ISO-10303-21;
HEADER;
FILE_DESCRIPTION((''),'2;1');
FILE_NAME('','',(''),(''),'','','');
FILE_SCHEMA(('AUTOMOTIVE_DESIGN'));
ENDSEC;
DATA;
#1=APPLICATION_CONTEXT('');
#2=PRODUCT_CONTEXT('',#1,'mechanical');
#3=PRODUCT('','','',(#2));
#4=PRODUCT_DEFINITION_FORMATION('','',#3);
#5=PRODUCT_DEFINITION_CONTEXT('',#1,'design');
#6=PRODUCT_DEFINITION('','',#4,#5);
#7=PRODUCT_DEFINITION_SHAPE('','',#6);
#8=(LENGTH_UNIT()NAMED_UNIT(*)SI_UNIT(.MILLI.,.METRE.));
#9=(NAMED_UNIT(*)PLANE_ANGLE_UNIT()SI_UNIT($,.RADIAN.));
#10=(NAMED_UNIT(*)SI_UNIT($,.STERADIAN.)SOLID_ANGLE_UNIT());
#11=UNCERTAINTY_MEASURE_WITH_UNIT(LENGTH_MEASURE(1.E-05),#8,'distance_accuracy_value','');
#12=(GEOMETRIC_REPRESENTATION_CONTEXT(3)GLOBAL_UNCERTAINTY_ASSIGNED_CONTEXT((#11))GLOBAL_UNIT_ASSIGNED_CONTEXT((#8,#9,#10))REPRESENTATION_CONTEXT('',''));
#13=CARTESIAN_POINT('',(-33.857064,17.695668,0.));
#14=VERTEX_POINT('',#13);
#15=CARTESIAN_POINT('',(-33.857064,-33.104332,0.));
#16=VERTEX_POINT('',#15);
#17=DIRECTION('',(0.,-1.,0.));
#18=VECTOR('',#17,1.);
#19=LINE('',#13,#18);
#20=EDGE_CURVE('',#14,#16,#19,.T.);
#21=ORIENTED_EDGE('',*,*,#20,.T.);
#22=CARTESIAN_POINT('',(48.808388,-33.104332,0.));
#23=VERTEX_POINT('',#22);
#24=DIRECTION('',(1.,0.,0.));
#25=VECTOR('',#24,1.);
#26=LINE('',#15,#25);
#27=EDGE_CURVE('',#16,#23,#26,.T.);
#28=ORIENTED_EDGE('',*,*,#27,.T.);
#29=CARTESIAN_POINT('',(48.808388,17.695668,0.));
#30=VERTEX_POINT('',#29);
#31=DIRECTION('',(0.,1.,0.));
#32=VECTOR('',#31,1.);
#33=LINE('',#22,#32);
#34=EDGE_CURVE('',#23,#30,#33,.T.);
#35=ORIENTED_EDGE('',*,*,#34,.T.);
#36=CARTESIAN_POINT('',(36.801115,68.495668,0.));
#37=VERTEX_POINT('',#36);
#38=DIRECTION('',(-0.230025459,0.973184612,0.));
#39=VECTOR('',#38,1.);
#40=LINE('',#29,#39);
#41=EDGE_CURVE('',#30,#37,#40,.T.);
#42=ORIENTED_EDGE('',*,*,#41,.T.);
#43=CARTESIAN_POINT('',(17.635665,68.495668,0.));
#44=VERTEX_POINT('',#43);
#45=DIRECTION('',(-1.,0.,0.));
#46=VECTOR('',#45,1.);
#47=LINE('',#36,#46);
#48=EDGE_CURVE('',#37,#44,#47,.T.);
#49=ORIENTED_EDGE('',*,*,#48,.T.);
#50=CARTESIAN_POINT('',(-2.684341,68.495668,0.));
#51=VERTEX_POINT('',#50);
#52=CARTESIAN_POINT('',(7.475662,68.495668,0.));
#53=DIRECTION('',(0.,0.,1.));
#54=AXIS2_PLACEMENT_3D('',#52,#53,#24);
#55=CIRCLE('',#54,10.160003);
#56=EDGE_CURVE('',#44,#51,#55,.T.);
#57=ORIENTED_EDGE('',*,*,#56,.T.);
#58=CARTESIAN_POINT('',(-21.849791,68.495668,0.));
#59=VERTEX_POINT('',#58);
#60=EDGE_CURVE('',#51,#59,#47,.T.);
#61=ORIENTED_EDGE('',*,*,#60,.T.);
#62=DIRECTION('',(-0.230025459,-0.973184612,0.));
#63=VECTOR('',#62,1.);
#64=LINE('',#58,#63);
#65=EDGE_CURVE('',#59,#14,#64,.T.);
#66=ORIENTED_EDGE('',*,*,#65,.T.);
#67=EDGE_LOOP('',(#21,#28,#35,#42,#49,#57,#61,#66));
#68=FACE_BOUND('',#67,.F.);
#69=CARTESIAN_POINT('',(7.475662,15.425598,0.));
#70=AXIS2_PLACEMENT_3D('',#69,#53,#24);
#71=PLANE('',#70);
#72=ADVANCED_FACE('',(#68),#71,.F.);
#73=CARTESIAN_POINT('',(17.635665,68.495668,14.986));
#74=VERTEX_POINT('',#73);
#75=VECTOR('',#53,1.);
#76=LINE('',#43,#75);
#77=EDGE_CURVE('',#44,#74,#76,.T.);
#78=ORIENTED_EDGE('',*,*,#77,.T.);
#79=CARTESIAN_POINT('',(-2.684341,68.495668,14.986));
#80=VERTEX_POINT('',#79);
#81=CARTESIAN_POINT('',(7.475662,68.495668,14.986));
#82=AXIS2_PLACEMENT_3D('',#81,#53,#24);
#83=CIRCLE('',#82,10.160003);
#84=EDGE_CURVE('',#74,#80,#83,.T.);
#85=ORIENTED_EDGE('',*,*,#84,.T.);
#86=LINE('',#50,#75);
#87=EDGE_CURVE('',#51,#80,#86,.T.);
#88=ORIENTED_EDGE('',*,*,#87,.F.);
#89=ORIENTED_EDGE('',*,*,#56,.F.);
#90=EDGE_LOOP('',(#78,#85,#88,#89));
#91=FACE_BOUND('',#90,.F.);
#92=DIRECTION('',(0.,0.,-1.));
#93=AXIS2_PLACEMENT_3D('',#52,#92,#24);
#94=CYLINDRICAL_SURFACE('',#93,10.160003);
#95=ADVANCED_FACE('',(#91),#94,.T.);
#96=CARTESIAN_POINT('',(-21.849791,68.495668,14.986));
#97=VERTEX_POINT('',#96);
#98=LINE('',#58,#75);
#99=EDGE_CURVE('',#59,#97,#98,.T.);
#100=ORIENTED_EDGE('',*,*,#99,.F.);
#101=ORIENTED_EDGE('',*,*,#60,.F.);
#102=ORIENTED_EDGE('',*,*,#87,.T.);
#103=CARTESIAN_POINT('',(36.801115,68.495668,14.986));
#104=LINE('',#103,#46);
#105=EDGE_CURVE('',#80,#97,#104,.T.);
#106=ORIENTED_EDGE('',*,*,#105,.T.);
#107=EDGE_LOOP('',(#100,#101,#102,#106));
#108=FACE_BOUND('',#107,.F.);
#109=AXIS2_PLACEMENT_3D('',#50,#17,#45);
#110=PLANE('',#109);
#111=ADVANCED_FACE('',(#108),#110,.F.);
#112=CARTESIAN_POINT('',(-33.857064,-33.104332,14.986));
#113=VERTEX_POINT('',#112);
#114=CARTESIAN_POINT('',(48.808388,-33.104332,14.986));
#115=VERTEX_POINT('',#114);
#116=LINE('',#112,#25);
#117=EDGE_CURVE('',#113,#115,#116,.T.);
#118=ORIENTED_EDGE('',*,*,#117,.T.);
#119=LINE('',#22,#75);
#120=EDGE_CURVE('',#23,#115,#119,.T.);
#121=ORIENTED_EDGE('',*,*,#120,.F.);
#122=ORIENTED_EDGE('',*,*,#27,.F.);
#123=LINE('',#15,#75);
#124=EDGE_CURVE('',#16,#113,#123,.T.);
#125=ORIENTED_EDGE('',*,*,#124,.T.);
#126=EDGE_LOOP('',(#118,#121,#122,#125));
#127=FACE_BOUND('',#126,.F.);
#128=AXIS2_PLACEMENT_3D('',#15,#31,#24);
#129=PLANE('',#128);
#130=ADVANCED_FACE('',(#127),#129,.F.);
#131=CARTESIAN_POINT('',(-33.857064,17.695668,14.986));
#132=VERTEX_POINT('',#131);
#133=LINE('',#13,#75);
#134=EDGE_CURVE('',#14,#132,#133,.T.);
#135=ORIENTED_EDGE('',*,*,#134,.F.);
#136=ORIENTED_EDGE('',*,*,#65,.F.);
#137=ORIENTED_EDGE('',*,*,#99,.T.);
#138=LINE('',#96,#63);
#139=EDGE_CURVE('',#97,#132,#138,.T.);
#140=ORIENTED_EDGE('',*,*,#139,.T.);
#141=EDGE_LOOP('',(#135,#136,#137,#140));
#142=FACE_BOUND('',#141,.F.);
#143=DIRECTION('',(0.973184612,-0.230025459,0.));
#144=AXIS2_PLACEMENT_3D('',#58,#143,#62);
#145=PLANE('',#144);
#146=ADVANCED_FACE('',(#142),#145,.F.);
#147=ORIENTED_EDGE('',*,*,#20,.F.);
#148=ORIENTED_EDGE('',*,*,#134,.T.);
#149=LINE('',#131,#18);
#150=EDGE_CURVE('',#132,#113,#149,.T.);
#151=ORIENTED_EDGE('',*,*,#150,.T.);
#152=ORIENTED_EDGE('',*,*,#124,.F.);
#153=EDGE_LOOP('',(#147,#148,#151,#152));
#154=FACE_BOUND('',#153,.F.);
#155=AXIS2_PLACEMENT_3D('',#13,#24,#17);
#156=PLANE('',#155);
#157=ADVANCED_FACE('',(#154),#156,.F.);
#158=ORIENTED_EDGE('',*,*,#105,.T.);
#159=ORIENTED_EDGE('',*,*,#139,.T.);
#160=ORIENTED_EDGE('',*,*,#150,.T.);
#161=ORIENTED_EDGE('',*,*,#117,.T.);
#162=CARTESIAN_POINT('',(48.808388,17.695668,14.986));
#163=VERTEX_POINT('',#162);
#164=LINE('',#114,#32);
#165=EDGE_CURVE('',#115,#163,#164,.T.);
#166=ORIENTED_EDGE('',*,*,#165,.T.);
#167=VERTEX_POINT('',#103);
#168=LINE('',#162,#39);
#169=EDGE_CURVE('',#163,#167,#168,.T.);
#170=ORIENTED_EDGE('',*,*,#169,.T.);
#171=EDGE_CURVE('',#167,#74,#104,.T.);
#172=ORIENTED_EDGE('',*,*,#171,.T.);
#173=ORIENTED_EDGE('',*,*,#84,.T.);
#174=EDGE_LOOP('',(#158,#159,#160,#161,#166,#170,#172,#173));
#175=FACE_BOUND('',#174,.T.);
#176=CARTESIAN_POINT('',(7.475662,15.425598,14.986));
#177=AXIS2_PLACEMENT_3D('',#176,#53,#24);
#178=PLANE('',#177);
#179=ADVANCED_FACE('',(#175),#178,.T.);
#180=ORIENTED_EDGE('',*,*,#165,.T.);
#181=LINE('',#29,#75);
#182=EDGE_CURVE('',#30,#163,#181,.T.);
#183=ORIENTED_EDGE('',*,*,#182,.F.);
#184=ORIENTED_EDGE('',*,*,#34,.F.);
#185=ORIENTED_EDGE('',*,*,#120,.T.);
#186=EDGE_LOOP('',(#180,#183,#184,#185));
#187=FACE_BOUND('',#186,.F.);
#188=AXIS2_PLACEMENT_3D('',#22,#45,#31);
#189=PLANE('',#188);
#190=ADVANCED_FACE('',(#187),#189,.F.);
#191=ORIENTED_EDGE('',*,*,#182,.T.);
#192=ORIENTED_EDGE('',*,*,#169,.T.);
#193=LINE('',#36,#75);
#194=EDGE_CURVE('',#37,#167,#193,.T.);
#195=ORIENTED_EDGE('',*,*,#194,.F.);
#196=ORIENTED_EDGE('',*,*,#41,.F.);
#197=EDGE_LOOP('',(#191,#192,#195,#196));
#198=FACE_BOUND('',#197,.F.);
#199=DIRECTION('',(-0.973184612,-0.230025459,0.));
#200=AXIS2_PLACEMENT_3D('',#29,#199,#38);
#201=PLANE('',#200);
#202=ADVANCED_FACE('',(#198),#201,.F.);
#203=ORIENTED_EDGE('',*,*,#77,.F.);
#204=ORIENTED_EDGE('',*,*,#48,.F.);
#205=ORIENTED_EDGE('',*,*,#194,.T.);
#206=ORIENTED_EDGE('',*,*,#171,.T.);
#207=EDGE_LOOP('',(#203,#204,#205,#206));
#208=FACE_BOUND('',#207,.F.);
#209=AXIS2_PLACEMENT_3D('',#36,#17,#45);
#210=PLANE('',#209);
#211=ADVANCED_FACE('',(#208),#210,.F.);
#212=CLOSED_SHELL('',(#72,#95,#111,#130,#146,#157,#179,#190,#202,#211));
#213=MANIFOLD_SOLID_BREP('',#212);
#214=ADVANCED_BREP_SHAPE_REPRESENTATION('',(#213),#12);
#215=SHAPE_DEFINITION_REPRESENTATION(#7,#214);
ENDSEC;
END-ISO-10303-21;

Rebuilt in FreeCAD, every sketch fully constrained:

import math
import FreeCAD as App
import Part
import Sketcher
Q = App.Units.Quantity

doc = App.newDocument("Part")
body = doc.addObject("PartDesign::Body", "Body")

# Sketch on XY plane
sketch1 = body.newObject("Sketcher::SketchObject", "Sketch")
sketch1.AttachmentSupport = (doc.getObject("XY_Plane"), [""])
sketch1.MapMode = "FlatFace"
sketch1.addGeometry(Part.LineSegment(App.Vector(-34, 18, 0), App.Vector(-34, -33, 0)), False)
sketch1.addGeometry(Part.LineSegment(App.Vector(-34, -33, 0), App.Vector(49, -33, 0)), False)
sketch1.addGeometry(Part.LineSegment(App.Vector(49, -33, 0), App.Vector(49, 18, 0)), False)
sketch1.addGeometry(Part.LineSegment(App.Vector(49, 18, 0), App.Vector(37, 68, 0)), False)
sketch1.addGeometry(Part.LineSegment(App.Vector(37, 68, 0), App.Vector(18, 68, 0)), False)
sketch1.addGeometry(Part.ArcOfCircle(Part.Circle(App.Vector(7, 68, 0), App.Vector(0, 0, 1), 10), math.radians(0), math.radians(180)), False)
sketch1.addGeometry(Part.LineSegment(App.Vector(-3, 68, 0), App.Vector(-22, 68, 0)), False)
sketch1.addGeometry(Part.LineSegment(App.Vector(-22, 68, 0), App.Vector(-34, 18, 0)), False)
sketch1.addConstraint(Sketcher.Constraint("Coincident", 0, 2, 1, 1))
sketch1.addConstraint(Sketcher.Constraint("Coincident", 1, 2, 2, 1))
sketch1.addConstraint(Sketcher.Constraint("Coincident", 2, 2, 3, 1))
sketch1.addConstraint(Sketcher.Constraint("Coincident", 3, 2, 4, 1))
sketch1.addConstraint(Sketcher.Constraint("Coincident", 4, 2, 5, 1))
sketch1.addConstraint(Sketcher.Constraint("Coincident", 5, 2, 6, 1))
sketch1.addConstraint(Sketcher.Constraint("Coincident", 6, 2, 7, 1))
sketch1.addConstraint(Sketcher.Constraint("Coincident", 7, 2, 0, 1))
sketch1.addConstraint(Sketcher.Constraint("Vertical", 0))
sketch1.addConstraint(Sketcher.Constraint("Horizontal", 1))
sketch1.addConstraint(Sketcher.Constraint("Vertical", 2))
sketch1.addConstraint(Sketcher.Constraint("Horizontal", 4))
sketch1.addConstraint(Sketcher.Constraint("Horizontal", 6))
sketch1.addConstraint(Sketcher.Constraint("Horizontal", 5, 3, 3, 2))
sketch1.addConstraint(Sketcher.Constraint("Horizontal", 4, 2, 5, 2))
sketch1.addConstraint(Sketcher.Constraint("Horizontal", 2, 2, 7, 2))
sketch1.addConstraint(Sketcher.Constraint("Equal", 4, 6))
sketch1.addConstraint(Sketcher.Constraint("Equal", 3, 7))
sketch1.addConstraint(Sketcher.Constraint("Radius", 5, Q("0.4000001 in")))
sketch1.addConstraint(Sketcher.Constraint("DistanceY", 0, 2, 0, 1, Q("2 in")))
sketch1.addConstraint(Sketcher.Constraint("DistanceY", 0, 2, 5, 3, Q("4 in")))
sketch1.addConstraint(Sketcher.Constraint("DistanceX", 1, 1, 1, 2, 82.665452))
sketch1.addConstraint(Sketcher.Constraint("DistanceX", 4, 2, 4, 1, 19.16545))
sketch1.addConstraint(Sketcher.Constraint("DistanceY", -1, 1, 5, 3, 68.495668))
sketch1.addConstraint(Sketcher.Constraint("DistanceX", 5, 2, -1, 1, 2.684341))
pad1 = body.newObject("PartDesign::Pad", "Pad")
pad1.Profile = sketch1
pad1.Length = Q("0.59 in")

doc.recompute()
